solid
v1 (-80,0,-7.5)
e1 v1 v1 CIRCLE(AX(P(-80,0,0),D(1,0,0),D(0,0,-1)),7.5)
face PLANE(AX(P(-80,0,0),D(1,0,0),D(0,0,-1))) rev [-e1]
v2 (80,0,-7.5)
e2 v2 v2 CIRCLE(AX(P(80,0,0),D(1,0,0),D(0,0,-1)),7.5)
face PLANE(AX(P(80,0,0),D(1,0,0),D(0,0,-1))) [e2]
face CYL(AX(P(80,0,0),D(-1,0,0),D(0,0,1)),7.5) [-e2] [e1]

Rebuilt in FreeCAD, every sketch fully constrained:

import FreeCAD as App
import Part
import Sketcher

V = App.Vector
Q = App.Units.Quantity

doc = App.newDocument("Part")
body = doc.addObject("PartDesign::Body", "Body")

# Sketch on YZ plane
sketch1 = body.newObject("Sketcher::SketchObject", "Sketch")
sketch1.AttachmentSupport = (doc.getObject("YZ_Plane"), [""])
sketch1.MapMode = "FlatFace"
sketch1.addGeometry(Part.Circle(V(0, 0, 0), V(0, 0, 1), 8), False)
sketch1.addConstraint([
    Sketcher.Constraint("Coincident", 0, 3, -1, 1),
    Sketcher.Constraint("Diameter", 0, Q("15 mm")),
])
pad1 = body.newObject("PartDesign::Pad", "Pad")
pad1.Profile = sketch1
pad1.Length = 160
pad1.Midplane = True

doc.recompute()
